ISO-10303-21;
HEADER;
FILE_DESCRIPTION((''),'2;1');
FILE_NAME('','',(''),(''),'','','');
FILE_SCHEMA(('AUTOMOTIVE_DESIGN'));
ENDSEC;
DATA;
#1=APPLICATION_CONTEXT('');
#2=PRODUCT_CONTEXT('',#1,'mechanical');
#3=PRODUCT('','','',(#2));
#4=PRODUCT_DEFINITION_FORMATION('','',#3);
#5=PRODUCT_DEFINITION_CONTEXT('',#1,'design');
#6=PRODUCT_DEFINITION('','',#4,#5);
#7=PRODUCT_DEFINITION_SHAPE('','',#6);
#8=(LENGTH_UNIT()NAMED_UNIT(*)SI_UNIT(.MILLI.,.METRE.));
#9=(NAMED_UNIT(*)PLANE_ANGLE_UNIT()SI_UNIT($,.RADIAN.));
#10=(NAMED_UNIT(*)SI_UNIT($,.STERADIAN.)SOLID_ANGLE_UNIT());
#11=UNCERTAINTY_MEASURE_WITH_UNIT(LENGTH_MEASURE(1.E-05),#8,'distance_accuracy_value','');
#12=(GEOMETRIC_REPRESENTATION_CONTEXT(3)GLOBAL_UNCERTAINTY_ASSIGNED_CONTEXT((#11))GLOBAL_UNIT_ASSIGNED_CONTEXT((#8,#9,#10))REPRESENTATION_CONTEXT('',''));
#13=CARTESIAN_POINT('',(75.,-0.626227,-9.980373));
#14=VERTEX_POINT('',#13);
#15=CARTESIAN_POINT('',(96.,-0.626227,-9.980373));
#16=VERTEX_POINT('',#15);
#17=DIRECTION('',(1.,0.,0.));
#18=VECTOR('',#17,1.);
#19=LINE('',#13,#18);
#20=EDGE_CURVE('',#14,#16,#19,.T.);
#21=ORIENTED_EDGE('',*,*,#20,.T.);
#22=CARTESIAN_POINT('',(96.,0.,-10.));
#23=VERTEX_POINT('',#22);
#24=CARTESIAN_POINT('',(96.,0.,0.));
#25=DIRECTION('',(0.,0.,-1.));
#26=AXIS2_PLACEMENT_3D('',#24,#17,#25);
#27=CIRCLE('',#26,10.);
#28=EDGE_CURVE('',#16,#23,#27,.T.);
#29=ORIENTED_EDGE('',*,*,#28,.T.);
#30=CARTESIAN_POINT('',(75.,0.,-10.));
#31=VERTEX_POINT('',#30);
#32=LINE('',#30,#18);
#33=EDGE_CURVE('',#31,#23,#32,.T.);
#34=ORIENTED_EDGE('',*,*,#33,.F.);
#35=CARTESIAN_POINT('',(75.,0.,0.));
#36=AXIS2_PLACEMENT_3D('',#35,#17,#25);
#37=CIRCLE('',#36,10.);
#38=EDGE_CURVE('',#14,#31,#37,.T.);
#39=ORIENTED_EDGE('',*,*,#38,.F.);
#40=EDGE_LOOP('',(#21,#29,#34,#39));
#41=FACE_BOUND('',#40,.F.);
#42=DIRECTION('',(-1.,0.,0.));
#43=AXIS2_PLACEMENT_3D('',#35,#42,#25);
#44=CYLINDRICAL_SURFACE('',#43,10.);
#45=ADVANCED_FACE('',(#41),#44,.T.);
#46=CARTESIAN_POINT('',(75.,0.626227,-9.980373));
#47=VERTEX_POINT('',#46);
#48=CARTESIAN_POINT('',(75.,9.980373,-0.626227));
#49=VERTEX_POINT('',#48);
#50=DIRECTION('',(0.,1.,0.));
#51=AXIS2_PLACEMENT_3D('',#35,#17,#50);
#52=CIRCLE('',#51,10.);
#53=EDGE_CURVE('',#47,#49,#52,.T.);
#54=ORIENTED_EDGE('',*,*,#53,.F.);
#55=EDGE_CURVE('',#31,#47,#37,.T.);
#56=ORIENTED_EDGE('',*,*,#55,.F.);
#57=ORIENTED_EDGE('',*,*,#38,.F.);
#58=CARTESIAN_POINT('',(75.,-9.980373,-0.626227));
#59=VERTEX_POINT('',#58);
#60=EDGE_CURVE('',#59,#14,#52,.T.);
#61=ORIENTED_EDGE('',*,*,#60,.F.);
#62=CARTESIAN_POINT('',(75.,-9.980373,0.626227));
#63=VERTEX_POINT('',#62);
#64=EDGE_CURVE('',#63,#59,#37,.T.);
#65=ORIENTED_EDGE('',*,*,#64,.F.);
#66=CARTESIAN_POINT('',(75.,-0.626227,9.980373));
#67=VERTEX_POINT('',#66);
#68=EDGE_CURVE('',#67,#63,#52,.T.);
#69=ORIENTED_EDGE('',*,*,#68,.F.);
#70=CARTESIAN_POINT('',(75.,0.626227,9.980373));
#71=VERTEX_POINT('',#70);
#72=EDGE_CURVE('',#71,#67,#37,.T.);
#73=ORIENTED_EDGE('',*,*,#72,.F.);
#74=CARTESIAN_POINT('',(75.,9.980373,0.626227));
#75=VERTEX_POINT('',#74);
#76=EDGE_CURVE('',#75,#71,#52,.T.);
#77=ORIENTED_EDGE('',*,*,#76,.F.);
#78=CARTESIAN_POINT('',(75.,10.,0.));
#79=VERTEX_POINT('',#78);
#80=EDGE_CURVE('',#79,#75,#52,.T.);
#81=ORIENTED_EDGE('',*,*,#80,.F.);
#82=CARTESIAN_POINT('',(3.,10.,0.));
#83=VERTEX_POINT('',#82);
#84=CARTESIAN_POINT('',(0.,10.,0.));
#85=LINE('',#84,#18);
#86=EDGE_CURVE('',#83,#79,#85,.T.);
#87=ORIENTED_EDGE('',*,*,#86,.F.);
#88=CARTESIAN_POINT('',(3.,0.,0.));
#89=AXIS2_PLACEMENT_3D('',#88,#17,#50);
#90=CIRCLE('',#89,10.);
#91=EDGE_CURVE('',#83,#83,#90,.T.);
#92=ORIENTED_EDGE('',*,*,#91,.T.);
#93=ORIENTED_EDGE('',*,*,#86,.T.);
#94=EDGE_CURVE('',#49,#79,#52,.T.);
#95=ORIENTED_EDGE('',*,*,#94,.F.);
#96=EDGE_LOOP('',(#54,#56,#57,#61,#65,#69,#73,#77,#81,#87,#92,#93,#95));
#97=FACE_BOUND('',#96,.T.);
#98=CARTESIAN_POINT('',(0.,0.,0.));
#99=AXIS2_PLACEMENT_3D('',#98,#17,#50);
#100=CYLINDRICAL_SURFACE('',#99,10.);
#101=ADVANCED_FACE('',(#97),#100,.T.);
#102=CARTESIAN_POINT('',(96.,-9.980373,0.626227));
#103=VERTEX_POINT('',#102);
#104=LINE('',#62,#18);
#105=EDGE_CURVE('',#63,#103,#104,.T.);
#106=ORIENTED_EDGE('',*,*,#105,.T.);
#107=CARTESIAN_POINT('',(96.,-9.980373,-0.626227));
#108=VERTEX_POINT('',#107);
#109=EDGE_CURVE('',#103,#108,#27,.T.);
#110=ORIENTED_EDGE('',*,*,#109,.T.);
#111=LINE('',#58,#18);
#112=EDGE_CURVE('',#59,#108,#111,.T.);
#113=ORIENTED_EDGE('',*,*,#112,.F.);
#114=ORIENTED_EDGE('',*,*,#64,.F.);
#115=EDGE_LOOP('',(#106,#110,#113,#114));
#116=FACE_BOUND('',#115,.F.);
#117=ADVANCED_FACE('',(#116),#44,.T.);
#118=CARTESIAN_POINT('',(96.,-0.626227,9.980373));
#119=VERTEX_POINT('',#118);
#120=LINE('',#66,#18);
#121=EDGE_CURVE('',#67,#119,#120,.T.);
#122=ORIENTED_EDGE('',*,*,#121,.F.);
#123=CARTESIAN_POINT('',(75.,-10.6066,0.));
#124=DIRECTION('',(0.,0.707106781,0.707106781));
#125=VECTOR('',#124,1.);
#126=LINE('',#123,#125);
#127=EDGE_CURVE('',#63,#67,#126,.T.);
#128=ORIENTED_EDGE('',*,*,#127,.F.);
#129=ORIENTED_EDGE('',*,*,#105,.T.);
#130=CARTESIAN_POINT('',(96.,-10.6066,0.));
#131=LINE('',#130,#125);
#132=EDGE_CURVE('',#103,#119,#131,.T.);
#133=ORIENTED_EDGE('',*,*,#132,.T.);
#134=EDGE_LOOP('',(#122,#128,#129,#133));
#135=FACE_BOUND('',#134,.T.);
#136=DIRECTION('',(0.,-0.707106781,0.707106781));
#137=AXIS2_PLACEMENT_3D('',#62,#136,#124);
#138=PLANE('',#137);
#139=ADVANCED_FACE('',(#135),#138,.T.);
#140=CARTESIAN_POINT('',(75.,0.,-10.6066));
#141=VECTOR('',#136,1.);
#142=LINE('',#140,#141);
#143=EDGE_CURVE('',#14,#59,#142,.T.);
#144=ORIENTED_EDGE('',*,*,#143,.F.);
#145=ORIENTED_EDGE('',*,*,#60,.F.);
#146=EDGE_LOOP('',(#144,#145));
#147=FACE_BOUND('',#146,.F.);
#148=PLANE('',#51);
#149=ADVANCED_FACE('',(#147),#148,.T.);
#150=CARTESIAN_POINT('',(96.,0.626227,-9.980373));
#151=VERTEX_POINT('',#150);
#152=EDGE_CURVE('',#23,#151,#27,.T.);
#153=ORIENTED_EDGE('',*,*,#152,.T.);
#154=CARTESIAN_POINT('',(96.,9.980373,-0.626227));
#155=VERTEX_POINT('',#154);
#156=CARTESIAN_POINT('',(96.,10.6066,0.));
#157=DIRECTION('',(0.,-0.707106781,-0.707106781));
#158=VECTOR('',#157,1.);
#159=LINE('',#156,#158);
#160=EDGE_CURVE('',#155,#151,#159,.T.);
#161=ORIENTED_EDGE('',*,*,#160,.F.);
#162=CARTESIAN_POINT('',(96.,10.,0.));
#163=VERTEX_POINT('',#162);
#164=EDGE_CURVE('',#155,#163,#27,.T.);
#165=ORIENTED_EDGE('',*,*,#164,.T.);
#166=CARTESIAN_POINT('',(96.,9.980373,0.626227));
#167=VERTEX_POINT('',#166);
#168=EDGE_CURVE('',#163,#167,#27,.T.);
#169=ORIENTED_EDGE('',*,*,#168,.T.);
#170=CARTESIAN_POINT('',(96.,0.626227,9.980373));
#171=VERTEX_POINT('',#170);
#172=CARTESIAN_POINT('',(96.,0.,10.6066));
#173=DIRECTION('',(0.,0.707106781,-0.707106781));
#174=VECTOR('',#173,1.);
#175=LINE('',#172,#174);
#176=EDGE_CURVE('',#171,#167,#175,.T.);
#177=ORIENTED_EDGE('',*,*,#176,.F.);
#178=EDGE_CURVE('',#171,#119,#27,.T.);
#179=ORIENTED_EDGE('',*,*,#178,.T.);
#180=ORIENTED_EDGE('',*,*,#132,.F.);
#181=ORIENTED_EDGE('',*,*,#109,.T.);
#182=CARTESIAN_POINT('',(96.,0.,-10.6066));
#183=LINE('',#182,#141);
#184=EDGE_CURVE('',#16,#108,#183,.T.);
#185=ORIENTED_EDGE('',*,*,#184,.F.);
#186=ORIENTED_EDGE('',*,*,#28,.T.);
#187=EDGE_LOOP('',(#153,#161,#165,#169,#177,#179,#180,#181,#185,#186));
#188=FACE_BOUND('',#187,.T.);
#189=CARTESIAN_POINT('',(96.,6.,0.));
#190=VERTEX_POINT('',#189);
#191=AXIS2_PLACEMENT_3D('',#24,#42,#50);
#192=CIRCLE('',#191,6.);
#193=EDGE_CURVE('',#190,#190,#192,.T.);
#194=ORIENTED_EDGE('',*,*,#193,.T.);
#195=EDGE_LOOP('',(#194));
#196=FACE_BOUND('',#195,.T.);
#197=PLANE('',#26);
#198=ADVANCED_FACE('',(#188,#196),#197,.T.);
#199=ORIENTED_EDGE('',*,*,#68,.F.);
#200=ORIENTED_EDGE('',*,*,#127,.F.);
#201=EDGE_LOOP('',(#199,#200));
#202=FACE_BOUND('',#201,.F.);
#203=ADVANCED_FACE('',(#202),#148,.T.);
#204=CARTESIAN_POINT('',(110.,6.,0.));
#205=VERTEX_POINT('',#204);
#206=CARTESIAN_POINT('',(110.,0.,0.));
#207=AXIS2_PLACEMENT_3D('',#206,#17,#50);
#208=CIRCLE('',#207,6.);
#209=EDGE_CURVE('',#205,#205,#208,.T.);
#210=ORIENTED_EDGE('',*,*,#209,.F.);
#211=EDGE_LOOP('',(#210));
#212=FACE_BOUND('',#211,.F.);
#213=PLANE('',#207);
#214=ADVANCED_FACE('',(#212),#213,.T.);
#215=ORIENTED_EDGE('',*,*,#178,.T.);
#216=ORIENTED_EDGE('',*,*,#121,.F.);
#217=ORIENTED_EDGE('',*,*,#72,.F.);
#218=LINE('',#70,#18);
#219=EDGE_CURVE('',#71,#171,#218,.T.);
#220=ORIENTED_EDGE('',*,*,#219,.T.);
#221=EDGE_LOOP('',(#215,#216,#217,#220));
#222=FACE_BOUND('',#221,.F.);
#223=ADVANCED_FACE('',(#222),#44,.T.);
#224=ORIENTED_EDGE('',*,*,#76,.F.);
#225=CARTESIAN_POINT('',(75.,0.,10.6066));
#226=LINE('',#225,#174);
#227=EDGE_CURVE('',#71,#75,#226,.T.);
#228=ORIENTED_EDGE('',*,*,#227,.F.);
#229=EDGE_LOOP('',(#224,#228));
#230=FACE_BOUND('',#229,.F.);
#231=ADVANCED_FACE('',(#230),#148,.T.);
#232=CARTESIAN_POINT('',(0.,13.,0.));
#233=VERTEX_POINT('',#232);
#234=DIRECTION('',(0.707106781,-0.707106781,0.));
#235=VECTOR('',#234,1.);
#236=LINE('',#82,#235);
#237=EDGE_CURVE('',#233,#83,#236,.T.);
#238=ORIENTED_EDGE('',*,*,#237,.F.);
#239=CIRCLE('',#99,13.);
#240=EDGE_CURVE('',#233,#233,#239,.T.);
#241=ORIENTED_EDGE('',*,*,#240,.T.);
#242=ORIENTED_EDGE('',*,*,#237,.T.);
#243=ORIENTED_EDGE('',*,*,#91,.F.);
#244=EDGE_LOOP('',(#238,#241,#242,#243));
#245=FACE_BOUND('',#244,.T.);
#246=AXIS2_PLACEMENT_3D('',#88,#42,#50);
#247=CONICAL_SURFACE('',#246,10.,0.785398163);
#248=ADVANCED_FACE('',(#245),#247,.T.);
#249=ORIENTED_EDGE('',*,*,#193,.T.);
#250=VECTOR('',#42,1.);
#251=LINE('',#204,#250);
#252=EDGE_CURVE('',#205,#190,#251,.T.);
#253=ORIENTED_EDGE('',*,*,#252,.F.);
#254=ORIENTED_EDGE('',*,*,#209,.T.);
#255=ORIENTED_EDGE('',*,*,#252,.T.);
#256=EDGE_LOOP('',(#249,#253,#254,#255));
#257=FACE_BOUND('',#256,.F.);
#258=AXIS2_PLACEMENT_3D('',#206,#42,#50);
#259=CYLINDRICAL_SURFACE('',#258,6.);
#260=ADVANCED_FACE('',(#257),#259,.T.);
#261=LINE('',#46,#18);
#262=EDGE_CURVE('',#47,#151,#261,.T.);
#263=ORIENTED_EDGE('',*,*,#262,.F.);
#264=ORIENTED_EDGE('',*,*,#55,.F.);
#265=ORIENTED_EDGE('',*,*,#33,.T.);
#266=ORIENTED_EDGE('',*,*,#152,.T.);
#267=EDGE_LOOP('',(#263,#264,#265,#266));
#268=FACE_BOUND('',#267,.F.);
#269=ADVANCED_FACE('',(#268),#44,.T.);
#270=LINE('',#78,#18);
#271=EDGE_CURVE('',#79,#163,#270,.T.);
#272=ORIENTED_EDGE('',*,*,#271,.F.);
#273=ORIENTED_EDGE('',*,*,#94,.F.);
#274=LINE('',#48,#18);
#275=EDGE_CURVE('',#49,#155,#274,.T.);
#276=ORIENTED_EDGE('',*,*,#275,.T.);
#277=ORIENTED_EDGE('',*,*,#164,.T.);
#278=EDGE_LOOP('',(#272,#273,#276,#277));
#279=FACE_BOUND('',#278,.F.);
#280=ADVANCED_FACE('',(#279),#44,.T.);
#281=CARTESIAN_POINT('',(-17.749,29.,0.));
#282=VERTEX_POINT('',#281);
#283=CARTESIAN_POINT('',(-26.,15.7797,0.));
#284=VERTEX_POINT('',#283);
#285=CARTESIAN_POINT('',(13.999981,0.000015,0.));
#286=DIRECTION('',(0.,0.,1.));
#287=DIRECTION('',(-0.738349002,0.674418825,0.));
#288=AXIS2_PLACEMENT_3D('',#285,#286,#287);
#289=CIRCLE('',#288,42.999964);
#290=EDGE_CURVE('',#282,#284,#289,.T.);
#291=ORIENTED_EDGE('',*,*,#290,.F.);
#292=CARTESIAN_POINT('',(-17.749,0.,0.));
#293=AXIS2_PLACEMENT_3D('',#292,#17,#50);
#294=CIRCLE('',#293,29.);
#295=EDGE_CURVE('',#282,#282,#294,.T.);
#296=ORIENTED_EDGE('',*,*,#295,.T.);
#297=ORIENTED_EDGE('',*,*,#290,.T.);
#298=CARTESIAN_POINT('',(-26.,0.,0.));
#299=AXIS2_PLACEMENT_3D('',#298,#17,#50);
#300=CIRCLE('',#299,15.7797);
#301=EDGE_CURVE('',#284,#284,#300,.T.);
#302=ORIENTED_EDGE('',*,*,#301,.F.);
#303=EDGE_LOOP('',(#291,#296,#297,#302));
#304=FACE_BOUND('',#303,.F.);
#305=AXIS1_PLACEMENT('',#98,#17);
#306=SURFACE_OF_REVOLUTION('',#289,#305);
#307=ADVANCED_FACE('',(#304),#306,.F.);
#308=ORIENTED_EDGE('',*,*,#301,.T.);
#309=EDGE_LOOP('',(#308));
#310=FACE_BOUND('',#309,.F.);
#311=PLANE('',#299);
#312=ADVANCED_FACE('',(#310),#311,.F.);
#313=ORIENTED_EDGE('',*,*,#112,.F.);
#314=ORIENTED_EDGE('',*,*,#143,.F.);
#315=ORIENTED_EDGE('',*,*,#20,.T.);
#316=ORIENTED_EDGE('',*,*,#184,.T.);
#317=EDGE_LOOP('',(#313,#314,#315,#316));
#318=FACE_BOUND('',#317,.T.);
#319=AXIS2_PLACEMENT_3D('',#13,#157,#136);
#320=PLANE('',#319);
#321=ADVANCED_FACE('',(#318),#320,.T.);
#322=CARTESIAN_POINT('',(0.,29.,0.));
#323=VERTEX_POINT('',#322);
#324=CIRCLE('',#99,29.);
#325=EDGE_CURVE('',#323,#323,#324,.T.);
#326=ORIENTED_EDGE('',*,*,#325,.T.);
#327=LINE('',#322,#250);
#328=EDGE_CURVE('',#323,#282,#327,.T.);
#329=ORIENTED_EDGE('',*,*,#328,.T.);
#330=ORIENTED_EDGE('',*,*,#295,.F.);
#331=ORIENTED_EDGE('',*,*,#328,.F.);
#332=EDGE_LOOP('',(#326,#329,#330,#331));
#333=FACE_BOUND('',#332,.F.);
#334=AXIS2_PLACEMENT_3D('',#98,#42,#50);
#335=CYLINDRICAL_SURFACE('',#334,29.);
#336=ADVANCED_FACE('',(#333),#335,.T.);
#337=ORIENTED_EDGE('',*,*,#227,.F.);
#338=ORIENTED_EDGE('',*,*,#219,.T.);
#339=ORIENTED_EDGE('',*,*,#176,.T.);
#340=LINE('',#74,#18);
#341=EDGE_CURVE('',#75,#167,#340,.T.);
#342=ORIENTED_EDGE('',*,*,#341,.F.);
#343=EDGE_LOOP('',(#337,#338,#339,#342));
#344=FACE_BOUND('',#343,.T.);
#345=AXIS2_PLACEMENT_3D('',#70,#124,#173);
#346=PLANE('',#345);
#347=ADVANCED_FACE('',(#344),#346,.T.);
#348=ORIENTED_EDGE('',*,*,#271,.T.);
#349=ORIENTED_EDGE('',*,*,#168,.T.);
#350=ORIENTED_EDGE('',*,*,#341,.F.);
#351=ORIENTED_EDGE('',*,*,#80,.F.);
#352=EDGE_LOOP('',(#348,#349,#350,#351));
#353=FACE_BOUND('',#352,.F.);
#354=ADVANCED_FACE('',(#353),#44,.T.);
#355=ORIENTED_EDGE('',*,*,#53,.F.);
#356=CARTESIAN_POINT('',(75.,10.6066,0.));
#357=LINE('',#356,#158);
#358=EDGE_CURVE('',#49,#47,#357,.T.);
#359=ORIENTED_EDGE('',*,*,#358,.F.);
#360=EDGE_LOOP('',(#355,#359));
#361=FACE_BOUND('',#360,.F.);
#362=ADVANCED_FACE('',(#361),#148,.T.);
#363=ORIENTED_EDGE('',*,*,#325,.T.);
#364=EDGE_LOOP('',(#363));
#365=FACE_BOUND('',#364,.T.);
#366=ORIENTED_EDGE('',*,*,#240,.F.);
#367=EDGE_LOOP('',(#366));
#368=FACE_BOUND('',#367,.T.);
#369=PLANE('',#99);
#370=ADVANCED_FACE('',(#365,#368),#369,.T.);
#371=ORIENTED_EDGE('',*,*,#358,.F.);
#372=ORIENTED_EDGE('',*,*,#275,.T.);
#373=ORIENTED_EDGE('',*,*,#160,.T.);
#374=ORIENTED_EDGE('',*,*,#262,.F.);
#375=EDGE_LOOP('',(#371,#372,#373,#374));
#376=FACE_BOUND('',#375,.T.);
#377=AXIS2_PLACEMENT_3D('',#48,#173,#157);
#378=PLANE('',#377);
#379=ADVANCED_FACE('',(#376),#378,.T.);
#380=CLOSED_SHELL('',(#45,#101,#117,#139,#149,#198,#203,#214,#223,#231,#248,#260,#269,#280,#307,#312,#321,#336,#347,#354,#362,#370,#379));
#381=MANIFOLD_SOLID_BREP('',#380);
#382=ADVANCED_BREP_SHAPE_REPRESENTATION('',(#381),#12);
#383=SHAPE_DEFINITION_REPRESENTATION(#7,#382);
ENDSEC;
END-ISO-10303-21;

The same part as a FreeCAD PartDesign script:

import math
import FreeCAD as App
import Part
import Sketcher
from FreeCAD import Vector


def edges_at(feature, points):
    """Names of the edges that pass closest to the given points."""
    edges = feature.Shape.Edges
    near = lambda p: min(range(len(edges)), key=lambda i: edges[i].distToShape(Part.Vertex(*p))[0])
    return sorted({f"Edge{near(p) + 1}" for p in points})

doc = App.newDocument("Part")
body = doc.addObject("PartDesign::Body", "Body")

sketch1 = body.newObject("Sketcher::SketchObject", "Sketch")
sketch1.AttachmentSupport = (doc.getObject("XY_Plane"), [""])
sketch1.MapMode = "FlatFace"
sketch1.addGeometry([
    Part.LineSegment(Vector(0, 10, 0), Vector(0, 29, 0)),
    Part.LineSegment(Vector(0, 29, 0), Vector(-17.7, 29, 0)),
    Part.ArcOfCircle(Part.Circle(Vector(14, 0, 0), Vector(0, 0, 1), 43), math.radians(138), math.radians(158)),
    Part.LineSegment(Vector(-26, 15.8, 0), Vector(-26, 0, 0)),
    Part.LineSegment(Vector(-26, 0, 0), Vector(110, 0, 0)),
    Part.LineSegment(Vector(110, 0, 0), Vector(110, 6, 0)),
    Part.LineSegment(Vector(110, 6, 0), Vector(75, 6, 0)),
    Part.LineSegment(Vector(75, 6, 0), Vector(75, 10, 0)),
    Part.LineSegment(Vector(75, 10, 0), Vector(0, 10, 0)),
], False)
sketch1.addConstraint([
    Sketcher.Constraint("Coincident", 0, 2, 1, 1),
    Sketcher.Constraint("Coincident", 1, 2, 2, 1),
    Sketcher.Constraint("Coincident", 2, 2, 3, 1),
    Sketcher.Constraint("Coincident", 3, 2, 4, 1),
    Sketcher.Constraint("Coincident", 4, 2, 5, 1),
    Sketcher.Constraint("Coincident", 5, 2, 6, 1),
    Sketcher.Constraint("Coincident", 6, 2, 7, 1),
    Sketcher.Constraint("Coincident", 7, 2, 8, 1),
    Sketcher.Constraint("Coincident", 8, 2, 0, 1),
    Sketcher.Constraint("Vertical", 0),
    Sketcher.Constraint("Horizontal", 1),
    Sketcher.Constraint("Vertical", 3),
    Sketcher.Constraint("Horizontal", 4),
    Sketcher.Constraint("Vertical", 5),
    Sketcher.Constraint("Horizontal", 6),
    Sketcher.Constraint("Vertical", 7),
    Sketcher.Constraint("Horizontal", 8),
    Sketcher.Constraint("PointOnObject", 2, 3, -1),
    Sketcher.Constraint("PointOnObject", 0, 2, -2),
    Sketcher.Constraint("PointOnObject", 3, 2, -1),
    Sketcher.Constraint("Radius", 2, 43.0),
    Sketcher.Constraint("DistanceX", 6, 2, 6, 1, 35.0),
    Sketcher.Constraint("DistanceY", 5, 1, 5, 2, 6.0),
    Sketcher.Constraint("DistanceX", -1, 1, 2, 3, 14.0),
    Sketcher.Constraint("DistanceY", -1, 1, 0, 2, 29.0),
    Sketcher.Constraint("DistanceX", 2, 2, -1, 1, 26.0),
    Sketcher.Constraint("DistanceX", -1, 1, 4, 2, 110.0),
    Sketcher.Constraint("DistanceY", -1, 1, 7, 2, 10.0),
])
revolution = body.newObject("PartDesign::Revolution", "Revolution")
revolution.Profile = sketch1
revolution.ReferenceAxis = (sketch1, ["H_Axis"])
revolution.Angle = 360

sketch2 = body.newObject("Sketcher::SketchObject", "Sketch001")
sketch2.AttachmentSupport = (doc.getObject("YZ_Plane"), [""])
sketch2.MapMode = "FlatFace"
sketch2.AttachmentOffset = App.Placement(Vector(0, 0, 75), App.Rotation())
sketch2.addGeometry([
    Part.LineSegment(Vector(0.6, -10, 0), Vector(10, -0.6, 0)),
    Part.ArcOfCircle(Part.Circle(Vector(0, 0, 0), Vector(0, 0, 1), 10), math.radians(-3.59), math.radians(3.59)),
    Part.LineSegment(Vector(10, 0.6, 0), Vector(0.6, 10, 0)),
    Part.ArcOfCircle(Part.Circle(Vector(0, 0, 0), Vector(0, 0, 1), 10), math.radians(86.41), math.radians(93.59)),
    Part.LineSegment(Vector(-0.6, 10, 0), Vector(-10, 0.6, 0)),
    Part.ArcOfCircle(Part.Circle(Vector(0, 0, 0), Vector(0, 0, 1), 10), math.radians(176.41), math.radians(183.59)),
    Part.LineSegment(Vector(-10, -0.6, 0), Vector(-0.6, -10, 0)),
    Part.ArcOfCircle(Part.Circle(Vector(0, 0, 0), Vector(0, 0, 1), 10), math.radians(-93.59), math.radians(-86.41)),
], False)
sketch2.addConstraint([
    Sketcher.Constraint("Coincident", 0, 2, 1, 1),
    Sketcher.Constraint("Coincident", 1, 2, 2, 1),
    Sketcher.Constraint("Coincident", 2, 2, 3, 1),
    Sketcher.Constraint("Coincident", 3, 2, 4, 1),
    Sketcher.Constraint("Coincident", 4, 2, 5, 1),
    Sketcher.Constraint("Coincident", 5, 2, 6, 1),
    Sketcher.Constraint("Coincident", 6, 2, 7, 1),
    Sketcher.Constraint("Coincident", 7, 2, 0, 1),
    Sketcher.Constraint("Coincident", 1, 3, -1, 1),
    Sketcher.Constraint("Coincident", 3, 3, -1, 1),
    Sketcher.Constraint("Coincident", 5, 3, -1, 1),
    Sketcher.Constraint("Coincident", 7, 3, -1, 1),
    Sketcher.Constraint("Equal", 1, 3),
    Sketcher.Constraint("Equal", 3, 5),
    Sketcher.Constraint("Equal", 5, 7),
    Sketcher.Constraint("Perpendicular", 0, 2),
    Sketcher.Constraint("Perpendicular", 2, 4),
    Sketcher.Constraint("Perpendicular", 4, 6),
    Sketcher.Constraint("Horizontal", 2, 2, 3, 2),
    Sketcher.Constraint("Horizontal", 1, 2, 4, 2),
    Sketcher.Constraint("Horizontal", 0, 2, 5, 2),
    Sketcher.Constraint("Vertical", 0, 2, 1, 2),
    Sketcher.Constraint("Radius", 1, 10.0),
    Sketcher.Constraint("Distance", 0, 13.2288),
])
pad1 = body.newObject("PartDesign::Pad", "Pad")
pad1.Profile = sketch2
pad1.Length = 21
doc.recompute()

chamfer = body.newObject("PartDesign::Chamfer", "Chamfer")
chamfer.Base = (pad1, edges_at(pad1, [(0, -10, 0)]))
chamfer.Size = 3

doc.recompute()
